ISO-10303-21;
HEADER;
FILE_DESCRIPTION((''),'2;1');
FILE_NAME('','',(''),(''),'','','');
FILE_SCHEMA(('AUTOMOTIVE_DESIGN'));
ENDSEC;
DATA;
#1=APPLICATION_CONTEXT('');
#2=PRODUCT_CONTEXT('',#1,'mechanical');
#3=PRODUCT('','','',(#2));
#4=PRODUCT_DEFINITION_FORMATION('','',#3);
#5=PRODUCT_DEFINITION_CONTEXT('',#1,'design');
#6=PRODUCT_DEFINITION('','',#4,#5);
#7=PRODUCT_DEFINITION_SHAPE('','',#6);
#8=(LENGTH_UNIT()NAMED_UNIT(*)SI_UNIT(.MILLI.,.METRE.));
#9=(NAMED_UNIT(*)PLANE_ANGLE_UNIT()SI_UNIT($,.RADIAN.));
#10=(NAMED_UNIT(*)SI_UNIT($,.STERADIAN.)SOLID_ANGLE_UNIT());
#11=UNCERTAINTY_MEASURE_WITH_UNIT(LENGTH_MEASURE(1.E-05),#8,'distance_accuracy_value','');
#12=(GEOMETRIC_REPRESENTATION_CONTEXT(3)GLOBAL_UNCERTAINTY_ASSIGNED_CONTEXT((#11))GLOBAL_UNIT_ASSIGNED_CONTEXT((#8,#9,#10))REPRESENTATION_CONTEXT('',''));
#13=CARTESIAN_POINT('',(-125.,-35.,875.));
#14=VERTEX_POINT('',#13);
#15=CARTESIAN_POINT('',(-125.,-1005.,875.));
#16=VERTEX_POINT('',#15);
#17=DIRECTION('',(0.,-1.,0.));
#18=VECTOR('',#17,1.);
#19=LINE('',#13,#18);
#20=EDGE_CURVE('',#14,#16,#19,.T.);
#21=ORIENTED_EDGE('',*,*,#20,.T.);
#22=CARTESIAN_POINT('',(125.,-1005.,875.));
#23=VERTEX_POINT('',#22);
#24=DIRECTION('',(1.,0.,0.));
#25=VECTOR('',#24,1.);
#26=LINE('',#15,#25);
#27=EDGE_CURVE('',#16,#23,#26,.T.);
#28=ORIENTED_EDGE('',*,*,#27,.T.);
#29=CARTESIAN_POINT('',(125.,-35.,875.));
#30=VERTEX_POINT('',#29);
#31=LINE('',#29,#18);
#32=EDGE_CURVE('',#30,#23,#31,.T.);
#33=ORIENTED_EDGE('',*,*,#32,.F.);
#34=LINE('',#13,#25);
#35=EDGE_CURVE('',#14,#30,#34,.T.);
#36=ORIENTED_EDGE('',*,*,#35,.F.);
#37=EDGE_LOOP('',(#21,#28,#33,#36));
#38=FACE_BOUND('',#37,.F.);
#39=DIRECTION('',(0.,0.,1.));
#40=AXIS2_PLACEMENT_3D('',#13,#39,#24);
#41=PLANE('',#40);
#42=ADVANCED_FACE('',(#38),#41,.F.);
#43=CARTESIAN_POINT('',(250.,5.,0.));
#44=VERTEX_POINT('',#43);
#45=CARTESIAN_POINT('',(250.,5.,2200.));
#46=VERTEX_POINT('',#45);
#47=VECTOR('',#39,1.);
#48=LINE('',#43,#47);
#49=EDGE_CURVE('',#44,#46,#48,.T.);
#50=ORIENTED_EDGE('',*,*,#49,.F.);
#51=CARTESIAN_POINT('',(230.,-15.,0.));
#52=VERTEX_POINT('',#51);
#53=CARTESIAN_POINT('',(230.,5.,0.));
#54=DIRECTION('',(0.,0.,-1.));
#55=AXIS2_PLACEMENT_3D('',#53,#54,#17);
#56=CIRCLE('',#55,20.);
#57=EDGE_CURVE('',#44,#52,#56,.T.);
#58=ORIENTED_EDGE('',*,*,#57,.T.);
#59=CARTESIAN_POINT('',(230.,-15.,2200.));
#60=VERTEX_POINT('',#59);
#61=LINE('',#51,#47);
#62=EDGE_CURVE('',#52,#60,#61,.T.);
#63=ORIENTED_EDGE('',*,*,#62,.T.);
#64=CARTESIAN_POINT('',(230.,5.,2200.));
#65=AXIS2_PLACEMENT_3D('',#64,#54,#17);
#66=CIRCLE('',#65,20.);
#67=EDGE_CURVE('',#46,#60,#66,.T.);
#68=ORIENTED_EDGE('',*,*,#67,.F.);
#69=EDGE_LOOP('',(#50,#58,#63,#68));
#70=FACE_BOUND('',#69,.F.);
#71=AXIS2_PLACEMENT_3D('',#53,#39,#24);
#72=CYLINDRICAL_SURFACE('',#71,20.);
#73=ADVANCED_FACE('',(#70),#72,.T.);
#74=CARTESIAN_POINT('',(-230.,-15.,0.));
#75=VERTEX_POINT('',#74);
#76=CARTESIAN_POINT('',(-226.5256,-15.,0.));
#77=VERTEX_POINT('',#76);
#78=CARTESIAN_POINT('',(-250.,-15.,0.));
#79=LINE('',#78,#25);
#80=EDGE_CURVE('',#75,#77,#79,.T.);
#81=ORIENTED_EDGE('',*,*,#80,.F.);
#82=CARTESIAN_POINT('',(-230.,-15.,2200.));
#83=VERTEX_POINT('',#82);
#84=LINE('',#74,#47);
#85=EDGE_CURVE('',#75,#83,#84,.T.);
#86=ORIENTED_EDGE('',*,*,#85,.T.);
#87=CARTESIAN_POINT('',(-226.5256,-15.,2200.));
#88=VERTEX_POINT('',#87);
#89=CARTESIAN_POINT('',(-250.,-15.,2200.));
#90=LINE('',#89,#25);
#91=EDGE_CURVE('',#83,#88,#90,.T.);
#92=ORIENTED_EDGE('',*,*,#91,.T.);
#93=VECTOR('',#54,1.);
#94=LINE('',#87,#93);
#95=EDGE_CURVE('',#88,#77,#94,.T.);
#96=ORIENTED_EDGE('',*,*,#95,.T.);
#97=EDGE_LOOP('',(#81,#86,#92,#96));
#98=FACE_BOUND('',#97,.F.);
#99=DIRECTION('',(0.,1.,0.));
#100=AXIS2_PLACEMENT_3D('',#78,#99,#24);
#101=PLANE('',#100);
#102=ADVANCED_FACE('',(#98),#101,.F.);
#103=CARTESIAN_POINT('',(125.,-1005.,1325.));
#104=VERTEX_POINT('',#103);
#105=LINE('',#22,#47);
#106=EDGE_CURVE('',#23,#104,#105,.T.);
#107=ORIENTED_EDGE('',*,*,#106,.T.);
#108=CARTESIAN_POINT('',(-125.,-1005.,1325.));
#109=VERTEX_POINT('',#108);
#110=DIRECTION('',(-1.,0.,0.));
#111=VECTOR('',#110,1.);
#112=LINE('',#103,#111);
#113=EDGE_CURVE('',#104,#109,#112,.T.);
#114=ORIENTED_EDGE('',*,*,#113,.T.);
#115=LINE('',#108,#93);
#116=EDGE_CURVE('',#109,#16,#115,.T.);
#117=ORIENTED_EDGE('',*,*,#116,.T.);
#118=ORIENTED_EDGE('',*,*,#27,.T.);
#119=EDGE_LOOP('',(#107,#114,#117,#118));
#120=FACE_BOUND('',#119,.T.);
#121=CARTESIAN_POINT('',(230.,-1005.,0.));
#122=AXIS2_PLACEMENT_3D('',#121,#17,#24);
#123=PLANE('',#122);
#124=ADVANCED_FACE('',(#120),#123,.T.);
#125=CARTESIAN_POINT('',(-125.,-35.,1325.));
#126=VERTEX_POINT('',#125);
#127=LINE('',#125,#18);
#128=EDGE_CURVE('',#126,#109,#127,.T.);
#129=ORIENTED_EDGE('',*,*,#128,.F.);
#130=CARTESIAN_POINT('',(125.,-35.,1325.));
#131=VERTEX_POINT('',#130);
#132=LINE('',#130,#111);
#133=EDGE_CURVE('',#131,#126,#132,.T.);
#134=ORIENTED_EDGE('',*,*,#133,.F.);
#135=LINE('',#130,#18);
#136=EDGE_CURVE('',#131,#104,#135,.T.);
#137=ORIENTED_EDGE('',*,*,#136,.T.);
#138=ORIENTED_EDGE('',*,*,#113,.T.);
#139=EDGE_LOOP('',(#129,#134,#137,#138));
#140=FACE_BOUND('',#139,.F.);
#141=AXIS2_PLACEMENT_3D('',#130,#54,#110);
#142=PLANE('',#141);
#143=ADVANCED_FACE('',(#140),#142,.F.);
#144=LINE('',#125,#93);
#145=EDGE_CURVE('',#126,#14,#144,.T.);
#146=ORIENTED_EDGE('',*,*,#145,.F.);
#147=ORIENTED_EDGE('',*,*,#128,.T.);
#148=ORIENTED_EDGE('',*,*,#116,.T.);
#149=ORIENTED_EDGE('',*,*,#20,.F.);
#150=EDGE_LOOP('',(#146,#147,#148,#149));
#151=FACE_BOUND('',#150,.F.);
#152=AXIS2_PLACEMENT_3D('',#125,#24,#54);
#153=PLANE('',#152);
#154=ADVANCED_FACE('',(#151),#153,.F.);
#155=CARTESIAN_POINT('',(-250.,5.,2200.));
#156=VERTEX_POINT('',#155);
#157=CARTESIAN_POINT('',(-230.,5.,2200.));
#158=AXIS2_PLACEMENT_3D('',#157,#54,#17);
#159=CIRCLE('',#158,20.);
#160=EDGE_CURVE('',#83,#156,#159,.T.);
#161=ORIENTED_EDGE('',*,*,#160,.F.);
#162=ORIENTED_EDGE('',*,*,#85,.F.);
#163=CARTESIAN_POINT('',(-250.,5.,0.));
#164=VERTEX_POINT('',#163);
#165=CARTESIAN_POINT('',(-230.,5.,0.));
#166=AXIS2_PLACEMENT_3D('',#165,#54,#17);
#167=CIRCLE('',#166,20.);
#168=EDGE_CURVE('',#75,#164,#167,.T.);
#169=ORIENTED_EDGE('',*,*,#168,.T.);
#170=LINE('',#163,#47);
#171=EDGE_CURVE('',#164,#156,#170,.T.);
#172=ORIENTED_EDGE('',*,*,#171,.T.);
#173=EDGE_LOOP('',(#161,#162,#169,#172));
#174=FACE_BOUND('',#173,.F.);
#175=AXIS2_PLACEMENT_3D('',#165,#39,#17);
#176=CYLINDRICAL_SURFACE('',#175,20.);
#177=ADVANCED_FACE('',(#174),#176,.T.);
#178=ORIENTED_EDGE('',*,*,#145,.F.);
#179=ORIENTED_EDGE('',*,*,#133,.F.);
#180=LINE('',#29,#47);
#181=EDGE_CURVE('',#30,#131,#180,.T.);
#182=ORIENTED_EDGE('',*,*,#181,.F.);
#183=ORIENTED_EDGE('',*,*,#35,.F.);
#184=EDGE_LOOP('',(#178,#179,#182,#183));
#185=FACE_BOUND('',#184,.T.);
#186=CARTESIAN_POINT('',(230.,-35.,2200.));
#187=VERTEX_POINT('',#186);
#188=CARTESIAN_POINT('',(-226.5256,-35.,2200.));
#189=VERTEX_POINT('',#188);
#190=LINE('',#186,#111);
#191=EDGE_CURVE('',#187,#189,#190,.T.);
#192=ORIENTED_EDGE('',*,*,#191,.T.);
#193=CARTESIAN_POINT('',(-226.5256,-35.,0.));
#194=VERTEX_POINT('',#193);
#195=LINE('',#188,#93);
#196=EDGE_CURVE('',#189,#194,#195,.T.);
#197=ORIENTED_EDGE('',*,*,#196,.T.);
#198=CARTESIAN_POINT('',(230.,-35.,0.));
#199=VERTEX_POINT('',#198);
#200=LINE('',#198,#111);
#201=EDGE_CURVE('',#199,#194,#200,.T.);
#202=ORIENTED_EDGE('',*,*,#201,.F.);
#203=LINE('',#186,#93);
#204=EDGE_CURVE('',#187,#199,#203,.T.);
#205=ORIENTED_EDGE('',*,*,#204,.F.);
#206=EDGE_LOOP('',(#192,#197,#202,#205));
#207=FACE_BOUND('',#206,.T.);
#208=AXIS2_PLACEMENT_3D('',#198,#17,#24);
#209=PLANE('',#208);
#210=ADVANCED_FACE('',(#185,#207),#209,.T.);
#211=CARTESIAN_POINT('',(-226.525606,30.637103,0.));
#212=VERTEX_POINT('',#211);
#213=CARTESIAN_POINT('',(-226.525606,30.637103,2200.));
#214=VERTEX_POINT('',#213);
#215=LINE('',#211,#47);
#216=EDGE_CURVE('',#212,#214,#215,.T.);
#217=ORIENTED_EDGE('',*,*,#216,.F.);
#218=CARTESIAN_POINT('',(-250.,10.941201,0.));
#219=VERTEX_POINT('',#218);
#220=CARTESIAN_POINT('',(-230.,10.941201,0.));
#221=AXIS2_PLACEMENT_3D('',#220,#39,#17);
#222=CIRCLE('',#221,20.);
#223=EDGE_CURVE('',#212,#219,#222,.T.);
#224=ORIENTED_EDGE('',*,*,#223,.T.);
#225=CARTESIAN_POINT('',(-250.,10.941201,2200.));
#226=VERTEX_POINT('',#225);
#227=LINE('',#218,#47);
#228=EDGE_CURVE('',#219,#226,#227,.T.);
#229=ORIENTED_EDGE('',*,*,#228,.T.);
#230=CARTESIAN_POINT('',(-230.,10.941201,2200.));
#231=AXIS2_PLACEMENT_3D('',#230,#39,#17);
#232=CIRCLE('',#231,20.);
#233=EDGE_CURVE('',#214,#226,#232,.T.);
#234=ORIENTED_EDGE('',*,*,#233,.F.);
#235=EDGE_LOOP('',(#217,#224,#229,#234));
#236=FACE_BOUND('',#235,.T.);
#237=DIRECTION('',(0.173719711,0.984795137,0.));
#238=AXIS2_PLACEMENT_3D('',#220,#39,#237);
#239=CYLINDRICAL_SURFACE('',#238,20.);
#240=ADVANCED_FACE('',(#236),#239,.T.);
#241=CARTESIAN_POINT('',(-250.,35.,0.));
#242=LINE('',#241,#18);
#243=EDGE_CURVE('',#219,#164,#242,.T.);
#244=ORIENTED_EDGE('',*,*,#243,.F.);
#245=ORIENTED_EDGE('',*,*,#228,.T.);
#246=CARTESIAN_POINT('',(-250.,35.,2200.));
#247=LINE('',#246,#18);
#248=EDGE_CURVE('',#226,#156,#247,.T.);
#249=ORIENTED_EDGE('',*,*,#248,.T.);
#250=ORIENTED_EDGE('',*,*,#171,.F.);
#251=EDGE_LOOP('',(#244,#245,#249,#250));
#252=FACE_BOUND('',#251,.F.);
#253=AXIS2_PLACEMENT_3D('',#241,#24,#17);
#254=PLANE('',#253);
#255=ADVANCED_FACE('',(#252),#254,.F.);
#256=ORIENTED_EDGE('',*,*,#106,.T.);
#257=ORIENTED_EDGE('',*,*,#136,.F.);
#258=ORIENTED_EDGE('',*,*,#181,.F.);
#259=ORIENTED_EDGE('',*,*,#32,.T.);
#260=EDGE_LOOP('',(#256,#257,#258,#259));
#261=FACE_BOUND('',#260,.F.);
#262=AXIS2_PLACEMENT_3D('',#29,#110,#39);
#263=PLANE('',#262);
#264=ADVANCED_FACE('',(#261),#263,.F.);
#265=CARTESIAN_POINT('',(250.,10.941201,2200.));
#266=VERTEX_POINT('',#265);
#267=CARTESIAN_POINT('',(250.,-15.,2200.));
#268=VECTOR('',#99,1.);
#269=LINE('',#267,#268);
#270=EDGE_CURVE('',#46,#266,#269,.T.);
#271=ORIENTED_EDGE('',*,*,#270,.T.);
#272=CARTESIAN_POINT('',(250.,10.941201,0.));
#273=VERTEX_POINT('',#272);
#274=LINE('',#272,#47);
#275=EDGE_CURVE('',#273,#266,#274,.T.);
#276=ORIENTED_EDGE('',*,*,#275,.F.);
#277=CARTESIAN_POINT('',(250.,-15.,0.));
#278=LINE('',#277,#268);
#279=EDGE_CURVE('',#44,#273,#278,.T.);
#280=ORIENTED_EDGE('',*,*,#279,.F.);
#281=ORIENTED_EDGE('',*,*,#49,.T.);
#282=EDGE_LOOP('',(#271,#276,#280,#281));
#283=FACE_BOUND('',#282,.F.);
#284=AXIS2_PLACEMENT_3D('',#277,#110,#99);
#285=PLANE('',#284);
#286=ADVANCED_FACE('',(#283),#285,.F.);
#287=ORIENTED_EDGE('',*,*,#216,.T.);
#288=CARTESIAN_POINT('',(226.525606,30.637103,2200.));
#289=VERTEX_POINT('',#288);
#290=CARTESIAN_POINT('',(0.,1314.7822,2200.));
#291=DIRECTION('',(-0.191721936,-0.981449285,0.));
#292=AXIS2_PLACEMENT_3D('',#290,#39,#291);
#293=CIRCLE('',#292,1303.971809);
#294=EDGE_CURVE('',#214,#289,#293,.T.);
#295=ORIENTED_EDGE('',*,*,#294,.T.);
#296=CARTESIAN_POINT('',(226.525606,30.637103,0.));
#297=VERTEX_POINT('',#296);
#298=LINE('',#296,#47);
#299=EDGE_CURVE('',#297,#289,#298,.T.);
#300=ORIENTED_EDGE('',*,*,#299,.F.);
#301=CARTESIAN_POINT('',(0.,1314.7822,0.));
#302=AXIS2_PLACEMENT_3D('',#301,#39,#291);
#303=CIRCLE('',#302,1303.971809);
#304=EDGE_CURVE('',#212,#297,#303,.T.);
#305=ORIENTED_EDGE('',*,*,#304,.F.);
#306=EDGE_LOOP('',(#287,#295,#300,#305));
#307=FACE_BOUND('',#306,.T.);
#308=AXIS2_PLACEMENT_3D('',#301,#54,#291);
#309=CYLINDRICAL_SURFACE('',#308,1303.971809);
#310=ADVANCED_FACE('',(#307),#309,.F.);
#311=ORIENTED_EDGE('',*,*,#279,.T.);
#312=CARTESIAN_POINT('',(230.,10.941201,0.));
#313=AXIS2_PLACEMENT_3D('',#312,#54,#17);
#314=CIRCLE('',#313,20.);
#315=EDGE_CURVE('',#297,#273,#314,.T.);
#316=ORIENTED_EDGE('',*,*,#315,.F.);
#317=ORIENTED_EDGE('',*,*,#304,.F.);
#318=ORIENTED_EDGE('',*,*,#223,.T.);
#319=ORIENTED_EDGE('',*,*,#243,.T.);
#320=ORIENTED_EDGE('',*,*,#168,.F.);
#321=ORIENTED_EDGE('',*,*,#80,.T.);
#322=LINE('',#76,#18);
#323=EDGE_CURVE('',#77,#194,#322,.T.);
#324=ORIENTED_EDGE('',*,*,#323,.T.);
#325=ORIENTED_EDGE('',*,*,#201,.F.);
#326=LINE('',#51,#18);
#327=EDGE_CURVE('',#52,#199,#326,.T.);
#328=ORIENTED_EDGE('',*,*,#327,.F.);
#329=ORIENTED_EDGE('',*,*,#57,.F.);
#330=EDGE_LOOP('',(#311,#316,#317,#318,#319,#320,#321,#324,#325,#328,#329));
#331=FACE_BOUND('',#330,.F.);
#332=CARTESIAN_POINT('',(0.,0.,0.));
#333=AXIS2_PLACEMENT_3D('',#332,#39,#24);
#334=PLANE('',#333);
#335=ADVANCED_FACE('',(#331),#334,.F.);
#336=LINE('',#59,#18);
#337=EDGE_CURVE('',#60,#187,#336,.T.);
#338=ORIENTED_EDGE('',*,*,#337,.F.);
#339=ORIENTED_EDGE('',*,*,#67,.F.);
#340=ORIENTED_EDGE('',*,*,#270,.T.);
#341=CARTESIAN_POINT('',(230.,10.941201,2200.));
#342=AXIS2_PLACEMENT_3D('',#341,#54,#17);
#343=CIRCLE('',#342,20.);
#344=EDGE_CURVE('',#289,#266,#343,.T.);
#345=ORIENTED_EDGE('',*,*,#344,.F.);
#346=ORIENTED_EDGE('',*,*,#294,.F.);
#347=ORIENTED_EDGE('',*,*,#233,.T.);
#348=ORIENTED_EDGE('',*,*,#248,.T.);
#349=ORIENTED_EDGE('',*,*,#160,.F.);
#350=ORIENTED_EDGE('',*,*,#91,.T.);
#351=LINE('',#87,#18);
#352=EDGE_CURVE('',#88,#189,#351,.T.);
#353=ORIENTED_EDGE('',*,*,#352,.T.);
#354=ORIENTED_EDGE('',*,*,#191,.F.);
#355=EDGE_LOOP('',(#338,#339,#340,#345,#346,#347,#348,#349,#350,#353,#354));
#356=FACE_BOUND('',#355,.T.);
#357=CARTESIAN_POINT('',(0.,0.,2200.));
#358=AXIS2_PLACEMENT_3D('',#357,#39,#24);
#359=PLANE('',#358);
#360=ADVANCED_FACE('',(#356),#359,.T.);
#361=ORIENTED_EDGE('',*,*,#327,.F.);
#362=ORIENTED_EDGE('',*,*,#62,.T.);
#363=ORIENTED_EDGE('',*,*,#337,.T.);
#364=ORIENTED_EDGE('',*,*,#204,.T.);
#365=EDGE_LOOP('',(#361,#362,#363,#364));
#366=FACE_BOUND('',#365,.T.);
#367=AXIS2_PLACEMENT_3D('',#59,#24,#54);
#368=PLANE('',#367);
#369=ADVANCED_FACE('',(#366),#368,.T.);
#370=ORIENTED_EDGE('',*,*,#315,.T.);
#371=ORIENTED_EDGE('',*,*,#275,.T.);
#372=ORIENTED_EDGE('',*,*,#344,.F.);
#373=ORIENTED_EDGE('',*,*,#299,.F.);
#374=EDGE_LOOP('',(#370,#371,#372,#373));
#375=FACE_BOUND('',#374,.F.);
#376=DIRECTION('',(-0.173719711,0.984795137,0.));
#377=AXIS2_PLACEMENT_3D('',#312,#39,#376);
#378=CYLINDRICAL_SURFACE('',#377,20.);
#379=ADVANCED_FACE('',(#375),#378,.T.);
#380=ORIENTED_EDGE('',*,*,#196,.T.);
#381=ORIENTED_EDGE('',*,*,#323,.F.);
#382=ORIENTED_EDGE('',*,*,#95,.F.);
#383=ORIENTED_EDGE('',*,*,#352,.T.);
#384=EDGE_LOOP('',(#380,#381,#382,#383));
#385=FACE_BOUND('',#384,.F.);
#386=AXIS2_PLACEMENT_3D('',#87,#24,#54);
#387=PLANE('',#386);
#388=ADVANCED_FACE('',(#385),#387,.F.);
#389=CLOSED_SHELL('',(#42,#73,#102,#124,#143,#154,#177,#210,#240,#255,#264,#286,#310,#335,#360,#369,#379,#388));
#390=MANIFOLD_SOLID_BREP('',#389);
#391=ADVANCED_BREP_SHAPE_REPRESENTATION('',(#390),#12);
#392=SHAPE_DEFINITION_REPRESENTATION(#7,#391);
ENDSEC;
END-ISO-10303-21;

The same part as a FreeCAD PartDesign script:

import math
import FreeCAD as App
import Part
import Sketcher


def edges_at(feature, points):
    """Names of the edges that pass closest to the given points."""
    edges = feature.Shape.Edges
    near = lambda p: min(range(len(edges)), key=lambda i: edges[i].distToShape(Part.Vertex(*p))[0])
    return sorted({f"Edge{near(p) + 1}" for p in points})

doc = App.newDocument("Part")
body = doc.addObject("PartDesign::Body", "Body")

# Sketch on XY plane
sketch1 = body.newObject("Sketcher::SketchObject", "Sketch")
sketch1.AttachmentSupport = (doc.getObject("XY_Plane"), [""])
sketch1.MapMode = "FlatFace"
sketch1.addGeometry(Part.LineSegment(App.Vector(-250, 35, 0), App.Vector(-250, -15, 0)), False)
sketch1.addGeometry(Part.LineSegment(App.Vector(-250, -15, 0), App.Vector(250, -15, 0)), False)
sketch1.addGeometry(Part.LineSegment(App.Vector(250, -15, 0), App.Vector(250, 35, 0)), False)
sketch1.addGeometry(Part.ArcOfCircle(Part.Circle(App.Vector(0, 1315, 0), App.Vector(0, 0, 1), 1304), math.radians(-101), math.radians(-79)), False)
sketch1.addConstraint(Sketcher.Constraint("Coincident", 0, 2, 1, 1))
sketch1.addConstraint(Sketcher.Constraint("Coincident", 1, 2, 2, 1))
sketch1.addConstraint(Sketcher.Constraint("Coincident", 2, 2, 3, 2))
sketch1.addConstraint(Sketcher.Constraint("Coincident", 3, 1, 0, 1))
sketch1.addConstraint(Sketcher.Constraint("Vertical", 0))
sketch1.addConstraint(Sketcher.Constraint("Horizontal", 1))
sketch1.addConstraint(Sketcher.Constraint("Vertical", 2))
sketch1.addConstraint(Sketcher.Constraint("PointOnObject", 3, 3, -2))
sketch1.addConstraint(Sketcher.Constraint("Equal", 0, 2))
sketch1.addConstraint(Sketcher.Constraint("DistanceX", 1, 1, 1, 2, 500.0))
sketch1.addConstraint(Sketcher.Constraint("DistanceY", 0, 2, 0, 1, 50.0))
sketch1.addConstraint(Sketcher.Constraint("DistanceY", 0, 2, -1, 1, 15.0))
sketch1.addConstraint(Sketcher.Constraint("Radius", 3, 1303.9718))
pad1 = body.newObject("PartDesign::Pad", "Pad")
pad1.Profile = sketch1
pad1.Length = 2200
doc.recompute()

fillet = body.newObject("PartDesign::Fillet", "Fillet")
fillet.Base = (pad1, edges_at(pad1, [(250, 35, 1100)]))
fillet.Radius = 20
doc.recompute()

fillet2 = body.newObject("PartDesign::Fillet", "Fillet001")
fillet2.Base = (fillet, edges_at(fillet, [(250, -15, 1100)]))
fillet2.Radius = 20
doc.recompute()

fillet3 = body.newObject("PartDesign::Fillet", "Fillet002")
fillet3.Base = (fillet2, edges_at(fillet2, [(-250, 35, 1100), (-250, -15, 1100)]))
fillet3.Radius = 20

# Sketch on XZ plane
sketch2 = body.newObject("Sketcher::SketchObject", "Sketch001")
sketch2.AttachmentSupport = (doc.getObject("XZ_Plane"), [""])
sketch2.MapMode = "FlatFace"
sketch2.AttachmentOffset = App.Placement(App.Vector(0, 0, 15), App.Rotation())
sketch2.addGeometry(Part.LineSegment(App.Vector(230, 0, 0), App.Vector(230, 2200, 0)), False)
sketch2.addGeometry(Part.LineSegment(App.Vector(230, 2200, 0), App.Vector(-227, 2200, 0)), False)
sketch2.addGeometry(Part.LineSegment(App.Vector(-227, 2200, 0), App.Vector(-227, 0, 0)), False)
sketch2.addGeometry(Part.LineSegment(App.Vector(-227, 0, 0), App.Vector(230, 0, 0)), False)
sketch2.addConstraint(Sketcher.Constraint("Coincident", 0, 2, 1, 1))
sketch2.addConstraint(Sketcher.Constraint("Coincident", 1, 2, 2, 1))
sketch2.addConstraint(Sketcher.Constraint("Coincident", 2, 2, 3, 1))
sketch2.addConstraint(Sketcher.Constraint("Coincident", 3, 2, 0, 1))
sketch2.addConstraint(Sketcher.Constraint("Vertical", 0))
sketch2.addConstraint(Sketcher.Constraint("Horizontal", 1))
sketch2.addConstraint(Sketcher.Constraint("Vertical", 2))
sketch2.addConstraint(Sketcher.Constraint("Horizontal", 3))
sketch2.addConstraint(Sketcher.Constraint("PointOnObject", 2, 2, -1))
sketch2.addConstraint(Sketcher.Constraint("DistanceY", 0, 1, 0, 2, 2200.0))
sketch2.addConstraint(Sketcher.Constraint("DistanceX", -1, 1, 0, 2, 230.0))
sketch2.addConstraint(Sketcher.Constraint("DistanceX", 1, 2, 1, 1, 456.5256))
pad2 = body.newObject("PartDesign::Pad", "Pad001")
pad2.Profile = sketch2
pad2.Length = 20

# Sketch on XZ plane
sketch3 = body.newObject("Sketcher::SketchObject", "Sketch002")
sketch3.AttachmentSupport = (doc.getObject("XZ_Plane"), [""])
sketch3.MapMode = "FlatFace"
sketch3.AttachmentOffset = App.Placement(App.Vector(0, 0, 35), App.Rotation())
sketch3.addGeometry(Part.LineSegment(App.Vector(125, 875, 0), App.Vector(125, 1325, 0)), False)
sketch3.addGeometry(Part.LineSegment(App.Vector(125, 1325, 0), App.Vector(-125, 1325, 0)), False)
sketch3.addGeometry(Part.LineSegment(App.Vector(-125, 1325, 0), App.Vector(-125, 875, 0)), False)
sketch3.addGeometry(Part.LineSegment(App.Vector(-125, 875, 0), App.Vector(125, 875, 0)), False)
sketch3.addConstraint(Sketcher.Constraint("Coincident", 0, 2, 1, 1))
sketch3.addConstraint(Sketcher.Constraint("Coincident", 1, 2, 2, 1))
sketch3.addConstraint(Sketcher.Constraint("Coincident", 2, 2, 3, 1))
sketch3.addConstraint(Sketcher.Constraint("Coincident", 3, 2, 0, 1))
sketch3.addConstraint(Sketcher.Constraint("Vertical", 0))
sketch3.addConstraint(Sketcher.Constraint("Horizontal", 1))
sketch3.addConstraint(Sketcher.Constraint("Vertical", 2))
sketch3.addConstraint(Sketcher.Constraint("Horizontal", 3))
sketch3.addConstraint(Sketcher.Constraint("DistanceX", 1, 2, 1, 1, 250.0))
sketch3.addConstraint(Sketcher.Constraint("DistanceY", 0, 1, 0, 2, 450.0))
sketch3.addConstraint(Sketcher.Constraint("DistanceX", -1, 1, 0, 2, 125.0))
sketch3.addConstraint(Sketcher.Constraint("DistanceY", -1, 1, 0, 2, 1325.0))
pad3 = body.newObject("PartDesign::Pad", "Pad002")
pad3.Profile = sketch3
pad3.Length = 970

doc.recompute()
